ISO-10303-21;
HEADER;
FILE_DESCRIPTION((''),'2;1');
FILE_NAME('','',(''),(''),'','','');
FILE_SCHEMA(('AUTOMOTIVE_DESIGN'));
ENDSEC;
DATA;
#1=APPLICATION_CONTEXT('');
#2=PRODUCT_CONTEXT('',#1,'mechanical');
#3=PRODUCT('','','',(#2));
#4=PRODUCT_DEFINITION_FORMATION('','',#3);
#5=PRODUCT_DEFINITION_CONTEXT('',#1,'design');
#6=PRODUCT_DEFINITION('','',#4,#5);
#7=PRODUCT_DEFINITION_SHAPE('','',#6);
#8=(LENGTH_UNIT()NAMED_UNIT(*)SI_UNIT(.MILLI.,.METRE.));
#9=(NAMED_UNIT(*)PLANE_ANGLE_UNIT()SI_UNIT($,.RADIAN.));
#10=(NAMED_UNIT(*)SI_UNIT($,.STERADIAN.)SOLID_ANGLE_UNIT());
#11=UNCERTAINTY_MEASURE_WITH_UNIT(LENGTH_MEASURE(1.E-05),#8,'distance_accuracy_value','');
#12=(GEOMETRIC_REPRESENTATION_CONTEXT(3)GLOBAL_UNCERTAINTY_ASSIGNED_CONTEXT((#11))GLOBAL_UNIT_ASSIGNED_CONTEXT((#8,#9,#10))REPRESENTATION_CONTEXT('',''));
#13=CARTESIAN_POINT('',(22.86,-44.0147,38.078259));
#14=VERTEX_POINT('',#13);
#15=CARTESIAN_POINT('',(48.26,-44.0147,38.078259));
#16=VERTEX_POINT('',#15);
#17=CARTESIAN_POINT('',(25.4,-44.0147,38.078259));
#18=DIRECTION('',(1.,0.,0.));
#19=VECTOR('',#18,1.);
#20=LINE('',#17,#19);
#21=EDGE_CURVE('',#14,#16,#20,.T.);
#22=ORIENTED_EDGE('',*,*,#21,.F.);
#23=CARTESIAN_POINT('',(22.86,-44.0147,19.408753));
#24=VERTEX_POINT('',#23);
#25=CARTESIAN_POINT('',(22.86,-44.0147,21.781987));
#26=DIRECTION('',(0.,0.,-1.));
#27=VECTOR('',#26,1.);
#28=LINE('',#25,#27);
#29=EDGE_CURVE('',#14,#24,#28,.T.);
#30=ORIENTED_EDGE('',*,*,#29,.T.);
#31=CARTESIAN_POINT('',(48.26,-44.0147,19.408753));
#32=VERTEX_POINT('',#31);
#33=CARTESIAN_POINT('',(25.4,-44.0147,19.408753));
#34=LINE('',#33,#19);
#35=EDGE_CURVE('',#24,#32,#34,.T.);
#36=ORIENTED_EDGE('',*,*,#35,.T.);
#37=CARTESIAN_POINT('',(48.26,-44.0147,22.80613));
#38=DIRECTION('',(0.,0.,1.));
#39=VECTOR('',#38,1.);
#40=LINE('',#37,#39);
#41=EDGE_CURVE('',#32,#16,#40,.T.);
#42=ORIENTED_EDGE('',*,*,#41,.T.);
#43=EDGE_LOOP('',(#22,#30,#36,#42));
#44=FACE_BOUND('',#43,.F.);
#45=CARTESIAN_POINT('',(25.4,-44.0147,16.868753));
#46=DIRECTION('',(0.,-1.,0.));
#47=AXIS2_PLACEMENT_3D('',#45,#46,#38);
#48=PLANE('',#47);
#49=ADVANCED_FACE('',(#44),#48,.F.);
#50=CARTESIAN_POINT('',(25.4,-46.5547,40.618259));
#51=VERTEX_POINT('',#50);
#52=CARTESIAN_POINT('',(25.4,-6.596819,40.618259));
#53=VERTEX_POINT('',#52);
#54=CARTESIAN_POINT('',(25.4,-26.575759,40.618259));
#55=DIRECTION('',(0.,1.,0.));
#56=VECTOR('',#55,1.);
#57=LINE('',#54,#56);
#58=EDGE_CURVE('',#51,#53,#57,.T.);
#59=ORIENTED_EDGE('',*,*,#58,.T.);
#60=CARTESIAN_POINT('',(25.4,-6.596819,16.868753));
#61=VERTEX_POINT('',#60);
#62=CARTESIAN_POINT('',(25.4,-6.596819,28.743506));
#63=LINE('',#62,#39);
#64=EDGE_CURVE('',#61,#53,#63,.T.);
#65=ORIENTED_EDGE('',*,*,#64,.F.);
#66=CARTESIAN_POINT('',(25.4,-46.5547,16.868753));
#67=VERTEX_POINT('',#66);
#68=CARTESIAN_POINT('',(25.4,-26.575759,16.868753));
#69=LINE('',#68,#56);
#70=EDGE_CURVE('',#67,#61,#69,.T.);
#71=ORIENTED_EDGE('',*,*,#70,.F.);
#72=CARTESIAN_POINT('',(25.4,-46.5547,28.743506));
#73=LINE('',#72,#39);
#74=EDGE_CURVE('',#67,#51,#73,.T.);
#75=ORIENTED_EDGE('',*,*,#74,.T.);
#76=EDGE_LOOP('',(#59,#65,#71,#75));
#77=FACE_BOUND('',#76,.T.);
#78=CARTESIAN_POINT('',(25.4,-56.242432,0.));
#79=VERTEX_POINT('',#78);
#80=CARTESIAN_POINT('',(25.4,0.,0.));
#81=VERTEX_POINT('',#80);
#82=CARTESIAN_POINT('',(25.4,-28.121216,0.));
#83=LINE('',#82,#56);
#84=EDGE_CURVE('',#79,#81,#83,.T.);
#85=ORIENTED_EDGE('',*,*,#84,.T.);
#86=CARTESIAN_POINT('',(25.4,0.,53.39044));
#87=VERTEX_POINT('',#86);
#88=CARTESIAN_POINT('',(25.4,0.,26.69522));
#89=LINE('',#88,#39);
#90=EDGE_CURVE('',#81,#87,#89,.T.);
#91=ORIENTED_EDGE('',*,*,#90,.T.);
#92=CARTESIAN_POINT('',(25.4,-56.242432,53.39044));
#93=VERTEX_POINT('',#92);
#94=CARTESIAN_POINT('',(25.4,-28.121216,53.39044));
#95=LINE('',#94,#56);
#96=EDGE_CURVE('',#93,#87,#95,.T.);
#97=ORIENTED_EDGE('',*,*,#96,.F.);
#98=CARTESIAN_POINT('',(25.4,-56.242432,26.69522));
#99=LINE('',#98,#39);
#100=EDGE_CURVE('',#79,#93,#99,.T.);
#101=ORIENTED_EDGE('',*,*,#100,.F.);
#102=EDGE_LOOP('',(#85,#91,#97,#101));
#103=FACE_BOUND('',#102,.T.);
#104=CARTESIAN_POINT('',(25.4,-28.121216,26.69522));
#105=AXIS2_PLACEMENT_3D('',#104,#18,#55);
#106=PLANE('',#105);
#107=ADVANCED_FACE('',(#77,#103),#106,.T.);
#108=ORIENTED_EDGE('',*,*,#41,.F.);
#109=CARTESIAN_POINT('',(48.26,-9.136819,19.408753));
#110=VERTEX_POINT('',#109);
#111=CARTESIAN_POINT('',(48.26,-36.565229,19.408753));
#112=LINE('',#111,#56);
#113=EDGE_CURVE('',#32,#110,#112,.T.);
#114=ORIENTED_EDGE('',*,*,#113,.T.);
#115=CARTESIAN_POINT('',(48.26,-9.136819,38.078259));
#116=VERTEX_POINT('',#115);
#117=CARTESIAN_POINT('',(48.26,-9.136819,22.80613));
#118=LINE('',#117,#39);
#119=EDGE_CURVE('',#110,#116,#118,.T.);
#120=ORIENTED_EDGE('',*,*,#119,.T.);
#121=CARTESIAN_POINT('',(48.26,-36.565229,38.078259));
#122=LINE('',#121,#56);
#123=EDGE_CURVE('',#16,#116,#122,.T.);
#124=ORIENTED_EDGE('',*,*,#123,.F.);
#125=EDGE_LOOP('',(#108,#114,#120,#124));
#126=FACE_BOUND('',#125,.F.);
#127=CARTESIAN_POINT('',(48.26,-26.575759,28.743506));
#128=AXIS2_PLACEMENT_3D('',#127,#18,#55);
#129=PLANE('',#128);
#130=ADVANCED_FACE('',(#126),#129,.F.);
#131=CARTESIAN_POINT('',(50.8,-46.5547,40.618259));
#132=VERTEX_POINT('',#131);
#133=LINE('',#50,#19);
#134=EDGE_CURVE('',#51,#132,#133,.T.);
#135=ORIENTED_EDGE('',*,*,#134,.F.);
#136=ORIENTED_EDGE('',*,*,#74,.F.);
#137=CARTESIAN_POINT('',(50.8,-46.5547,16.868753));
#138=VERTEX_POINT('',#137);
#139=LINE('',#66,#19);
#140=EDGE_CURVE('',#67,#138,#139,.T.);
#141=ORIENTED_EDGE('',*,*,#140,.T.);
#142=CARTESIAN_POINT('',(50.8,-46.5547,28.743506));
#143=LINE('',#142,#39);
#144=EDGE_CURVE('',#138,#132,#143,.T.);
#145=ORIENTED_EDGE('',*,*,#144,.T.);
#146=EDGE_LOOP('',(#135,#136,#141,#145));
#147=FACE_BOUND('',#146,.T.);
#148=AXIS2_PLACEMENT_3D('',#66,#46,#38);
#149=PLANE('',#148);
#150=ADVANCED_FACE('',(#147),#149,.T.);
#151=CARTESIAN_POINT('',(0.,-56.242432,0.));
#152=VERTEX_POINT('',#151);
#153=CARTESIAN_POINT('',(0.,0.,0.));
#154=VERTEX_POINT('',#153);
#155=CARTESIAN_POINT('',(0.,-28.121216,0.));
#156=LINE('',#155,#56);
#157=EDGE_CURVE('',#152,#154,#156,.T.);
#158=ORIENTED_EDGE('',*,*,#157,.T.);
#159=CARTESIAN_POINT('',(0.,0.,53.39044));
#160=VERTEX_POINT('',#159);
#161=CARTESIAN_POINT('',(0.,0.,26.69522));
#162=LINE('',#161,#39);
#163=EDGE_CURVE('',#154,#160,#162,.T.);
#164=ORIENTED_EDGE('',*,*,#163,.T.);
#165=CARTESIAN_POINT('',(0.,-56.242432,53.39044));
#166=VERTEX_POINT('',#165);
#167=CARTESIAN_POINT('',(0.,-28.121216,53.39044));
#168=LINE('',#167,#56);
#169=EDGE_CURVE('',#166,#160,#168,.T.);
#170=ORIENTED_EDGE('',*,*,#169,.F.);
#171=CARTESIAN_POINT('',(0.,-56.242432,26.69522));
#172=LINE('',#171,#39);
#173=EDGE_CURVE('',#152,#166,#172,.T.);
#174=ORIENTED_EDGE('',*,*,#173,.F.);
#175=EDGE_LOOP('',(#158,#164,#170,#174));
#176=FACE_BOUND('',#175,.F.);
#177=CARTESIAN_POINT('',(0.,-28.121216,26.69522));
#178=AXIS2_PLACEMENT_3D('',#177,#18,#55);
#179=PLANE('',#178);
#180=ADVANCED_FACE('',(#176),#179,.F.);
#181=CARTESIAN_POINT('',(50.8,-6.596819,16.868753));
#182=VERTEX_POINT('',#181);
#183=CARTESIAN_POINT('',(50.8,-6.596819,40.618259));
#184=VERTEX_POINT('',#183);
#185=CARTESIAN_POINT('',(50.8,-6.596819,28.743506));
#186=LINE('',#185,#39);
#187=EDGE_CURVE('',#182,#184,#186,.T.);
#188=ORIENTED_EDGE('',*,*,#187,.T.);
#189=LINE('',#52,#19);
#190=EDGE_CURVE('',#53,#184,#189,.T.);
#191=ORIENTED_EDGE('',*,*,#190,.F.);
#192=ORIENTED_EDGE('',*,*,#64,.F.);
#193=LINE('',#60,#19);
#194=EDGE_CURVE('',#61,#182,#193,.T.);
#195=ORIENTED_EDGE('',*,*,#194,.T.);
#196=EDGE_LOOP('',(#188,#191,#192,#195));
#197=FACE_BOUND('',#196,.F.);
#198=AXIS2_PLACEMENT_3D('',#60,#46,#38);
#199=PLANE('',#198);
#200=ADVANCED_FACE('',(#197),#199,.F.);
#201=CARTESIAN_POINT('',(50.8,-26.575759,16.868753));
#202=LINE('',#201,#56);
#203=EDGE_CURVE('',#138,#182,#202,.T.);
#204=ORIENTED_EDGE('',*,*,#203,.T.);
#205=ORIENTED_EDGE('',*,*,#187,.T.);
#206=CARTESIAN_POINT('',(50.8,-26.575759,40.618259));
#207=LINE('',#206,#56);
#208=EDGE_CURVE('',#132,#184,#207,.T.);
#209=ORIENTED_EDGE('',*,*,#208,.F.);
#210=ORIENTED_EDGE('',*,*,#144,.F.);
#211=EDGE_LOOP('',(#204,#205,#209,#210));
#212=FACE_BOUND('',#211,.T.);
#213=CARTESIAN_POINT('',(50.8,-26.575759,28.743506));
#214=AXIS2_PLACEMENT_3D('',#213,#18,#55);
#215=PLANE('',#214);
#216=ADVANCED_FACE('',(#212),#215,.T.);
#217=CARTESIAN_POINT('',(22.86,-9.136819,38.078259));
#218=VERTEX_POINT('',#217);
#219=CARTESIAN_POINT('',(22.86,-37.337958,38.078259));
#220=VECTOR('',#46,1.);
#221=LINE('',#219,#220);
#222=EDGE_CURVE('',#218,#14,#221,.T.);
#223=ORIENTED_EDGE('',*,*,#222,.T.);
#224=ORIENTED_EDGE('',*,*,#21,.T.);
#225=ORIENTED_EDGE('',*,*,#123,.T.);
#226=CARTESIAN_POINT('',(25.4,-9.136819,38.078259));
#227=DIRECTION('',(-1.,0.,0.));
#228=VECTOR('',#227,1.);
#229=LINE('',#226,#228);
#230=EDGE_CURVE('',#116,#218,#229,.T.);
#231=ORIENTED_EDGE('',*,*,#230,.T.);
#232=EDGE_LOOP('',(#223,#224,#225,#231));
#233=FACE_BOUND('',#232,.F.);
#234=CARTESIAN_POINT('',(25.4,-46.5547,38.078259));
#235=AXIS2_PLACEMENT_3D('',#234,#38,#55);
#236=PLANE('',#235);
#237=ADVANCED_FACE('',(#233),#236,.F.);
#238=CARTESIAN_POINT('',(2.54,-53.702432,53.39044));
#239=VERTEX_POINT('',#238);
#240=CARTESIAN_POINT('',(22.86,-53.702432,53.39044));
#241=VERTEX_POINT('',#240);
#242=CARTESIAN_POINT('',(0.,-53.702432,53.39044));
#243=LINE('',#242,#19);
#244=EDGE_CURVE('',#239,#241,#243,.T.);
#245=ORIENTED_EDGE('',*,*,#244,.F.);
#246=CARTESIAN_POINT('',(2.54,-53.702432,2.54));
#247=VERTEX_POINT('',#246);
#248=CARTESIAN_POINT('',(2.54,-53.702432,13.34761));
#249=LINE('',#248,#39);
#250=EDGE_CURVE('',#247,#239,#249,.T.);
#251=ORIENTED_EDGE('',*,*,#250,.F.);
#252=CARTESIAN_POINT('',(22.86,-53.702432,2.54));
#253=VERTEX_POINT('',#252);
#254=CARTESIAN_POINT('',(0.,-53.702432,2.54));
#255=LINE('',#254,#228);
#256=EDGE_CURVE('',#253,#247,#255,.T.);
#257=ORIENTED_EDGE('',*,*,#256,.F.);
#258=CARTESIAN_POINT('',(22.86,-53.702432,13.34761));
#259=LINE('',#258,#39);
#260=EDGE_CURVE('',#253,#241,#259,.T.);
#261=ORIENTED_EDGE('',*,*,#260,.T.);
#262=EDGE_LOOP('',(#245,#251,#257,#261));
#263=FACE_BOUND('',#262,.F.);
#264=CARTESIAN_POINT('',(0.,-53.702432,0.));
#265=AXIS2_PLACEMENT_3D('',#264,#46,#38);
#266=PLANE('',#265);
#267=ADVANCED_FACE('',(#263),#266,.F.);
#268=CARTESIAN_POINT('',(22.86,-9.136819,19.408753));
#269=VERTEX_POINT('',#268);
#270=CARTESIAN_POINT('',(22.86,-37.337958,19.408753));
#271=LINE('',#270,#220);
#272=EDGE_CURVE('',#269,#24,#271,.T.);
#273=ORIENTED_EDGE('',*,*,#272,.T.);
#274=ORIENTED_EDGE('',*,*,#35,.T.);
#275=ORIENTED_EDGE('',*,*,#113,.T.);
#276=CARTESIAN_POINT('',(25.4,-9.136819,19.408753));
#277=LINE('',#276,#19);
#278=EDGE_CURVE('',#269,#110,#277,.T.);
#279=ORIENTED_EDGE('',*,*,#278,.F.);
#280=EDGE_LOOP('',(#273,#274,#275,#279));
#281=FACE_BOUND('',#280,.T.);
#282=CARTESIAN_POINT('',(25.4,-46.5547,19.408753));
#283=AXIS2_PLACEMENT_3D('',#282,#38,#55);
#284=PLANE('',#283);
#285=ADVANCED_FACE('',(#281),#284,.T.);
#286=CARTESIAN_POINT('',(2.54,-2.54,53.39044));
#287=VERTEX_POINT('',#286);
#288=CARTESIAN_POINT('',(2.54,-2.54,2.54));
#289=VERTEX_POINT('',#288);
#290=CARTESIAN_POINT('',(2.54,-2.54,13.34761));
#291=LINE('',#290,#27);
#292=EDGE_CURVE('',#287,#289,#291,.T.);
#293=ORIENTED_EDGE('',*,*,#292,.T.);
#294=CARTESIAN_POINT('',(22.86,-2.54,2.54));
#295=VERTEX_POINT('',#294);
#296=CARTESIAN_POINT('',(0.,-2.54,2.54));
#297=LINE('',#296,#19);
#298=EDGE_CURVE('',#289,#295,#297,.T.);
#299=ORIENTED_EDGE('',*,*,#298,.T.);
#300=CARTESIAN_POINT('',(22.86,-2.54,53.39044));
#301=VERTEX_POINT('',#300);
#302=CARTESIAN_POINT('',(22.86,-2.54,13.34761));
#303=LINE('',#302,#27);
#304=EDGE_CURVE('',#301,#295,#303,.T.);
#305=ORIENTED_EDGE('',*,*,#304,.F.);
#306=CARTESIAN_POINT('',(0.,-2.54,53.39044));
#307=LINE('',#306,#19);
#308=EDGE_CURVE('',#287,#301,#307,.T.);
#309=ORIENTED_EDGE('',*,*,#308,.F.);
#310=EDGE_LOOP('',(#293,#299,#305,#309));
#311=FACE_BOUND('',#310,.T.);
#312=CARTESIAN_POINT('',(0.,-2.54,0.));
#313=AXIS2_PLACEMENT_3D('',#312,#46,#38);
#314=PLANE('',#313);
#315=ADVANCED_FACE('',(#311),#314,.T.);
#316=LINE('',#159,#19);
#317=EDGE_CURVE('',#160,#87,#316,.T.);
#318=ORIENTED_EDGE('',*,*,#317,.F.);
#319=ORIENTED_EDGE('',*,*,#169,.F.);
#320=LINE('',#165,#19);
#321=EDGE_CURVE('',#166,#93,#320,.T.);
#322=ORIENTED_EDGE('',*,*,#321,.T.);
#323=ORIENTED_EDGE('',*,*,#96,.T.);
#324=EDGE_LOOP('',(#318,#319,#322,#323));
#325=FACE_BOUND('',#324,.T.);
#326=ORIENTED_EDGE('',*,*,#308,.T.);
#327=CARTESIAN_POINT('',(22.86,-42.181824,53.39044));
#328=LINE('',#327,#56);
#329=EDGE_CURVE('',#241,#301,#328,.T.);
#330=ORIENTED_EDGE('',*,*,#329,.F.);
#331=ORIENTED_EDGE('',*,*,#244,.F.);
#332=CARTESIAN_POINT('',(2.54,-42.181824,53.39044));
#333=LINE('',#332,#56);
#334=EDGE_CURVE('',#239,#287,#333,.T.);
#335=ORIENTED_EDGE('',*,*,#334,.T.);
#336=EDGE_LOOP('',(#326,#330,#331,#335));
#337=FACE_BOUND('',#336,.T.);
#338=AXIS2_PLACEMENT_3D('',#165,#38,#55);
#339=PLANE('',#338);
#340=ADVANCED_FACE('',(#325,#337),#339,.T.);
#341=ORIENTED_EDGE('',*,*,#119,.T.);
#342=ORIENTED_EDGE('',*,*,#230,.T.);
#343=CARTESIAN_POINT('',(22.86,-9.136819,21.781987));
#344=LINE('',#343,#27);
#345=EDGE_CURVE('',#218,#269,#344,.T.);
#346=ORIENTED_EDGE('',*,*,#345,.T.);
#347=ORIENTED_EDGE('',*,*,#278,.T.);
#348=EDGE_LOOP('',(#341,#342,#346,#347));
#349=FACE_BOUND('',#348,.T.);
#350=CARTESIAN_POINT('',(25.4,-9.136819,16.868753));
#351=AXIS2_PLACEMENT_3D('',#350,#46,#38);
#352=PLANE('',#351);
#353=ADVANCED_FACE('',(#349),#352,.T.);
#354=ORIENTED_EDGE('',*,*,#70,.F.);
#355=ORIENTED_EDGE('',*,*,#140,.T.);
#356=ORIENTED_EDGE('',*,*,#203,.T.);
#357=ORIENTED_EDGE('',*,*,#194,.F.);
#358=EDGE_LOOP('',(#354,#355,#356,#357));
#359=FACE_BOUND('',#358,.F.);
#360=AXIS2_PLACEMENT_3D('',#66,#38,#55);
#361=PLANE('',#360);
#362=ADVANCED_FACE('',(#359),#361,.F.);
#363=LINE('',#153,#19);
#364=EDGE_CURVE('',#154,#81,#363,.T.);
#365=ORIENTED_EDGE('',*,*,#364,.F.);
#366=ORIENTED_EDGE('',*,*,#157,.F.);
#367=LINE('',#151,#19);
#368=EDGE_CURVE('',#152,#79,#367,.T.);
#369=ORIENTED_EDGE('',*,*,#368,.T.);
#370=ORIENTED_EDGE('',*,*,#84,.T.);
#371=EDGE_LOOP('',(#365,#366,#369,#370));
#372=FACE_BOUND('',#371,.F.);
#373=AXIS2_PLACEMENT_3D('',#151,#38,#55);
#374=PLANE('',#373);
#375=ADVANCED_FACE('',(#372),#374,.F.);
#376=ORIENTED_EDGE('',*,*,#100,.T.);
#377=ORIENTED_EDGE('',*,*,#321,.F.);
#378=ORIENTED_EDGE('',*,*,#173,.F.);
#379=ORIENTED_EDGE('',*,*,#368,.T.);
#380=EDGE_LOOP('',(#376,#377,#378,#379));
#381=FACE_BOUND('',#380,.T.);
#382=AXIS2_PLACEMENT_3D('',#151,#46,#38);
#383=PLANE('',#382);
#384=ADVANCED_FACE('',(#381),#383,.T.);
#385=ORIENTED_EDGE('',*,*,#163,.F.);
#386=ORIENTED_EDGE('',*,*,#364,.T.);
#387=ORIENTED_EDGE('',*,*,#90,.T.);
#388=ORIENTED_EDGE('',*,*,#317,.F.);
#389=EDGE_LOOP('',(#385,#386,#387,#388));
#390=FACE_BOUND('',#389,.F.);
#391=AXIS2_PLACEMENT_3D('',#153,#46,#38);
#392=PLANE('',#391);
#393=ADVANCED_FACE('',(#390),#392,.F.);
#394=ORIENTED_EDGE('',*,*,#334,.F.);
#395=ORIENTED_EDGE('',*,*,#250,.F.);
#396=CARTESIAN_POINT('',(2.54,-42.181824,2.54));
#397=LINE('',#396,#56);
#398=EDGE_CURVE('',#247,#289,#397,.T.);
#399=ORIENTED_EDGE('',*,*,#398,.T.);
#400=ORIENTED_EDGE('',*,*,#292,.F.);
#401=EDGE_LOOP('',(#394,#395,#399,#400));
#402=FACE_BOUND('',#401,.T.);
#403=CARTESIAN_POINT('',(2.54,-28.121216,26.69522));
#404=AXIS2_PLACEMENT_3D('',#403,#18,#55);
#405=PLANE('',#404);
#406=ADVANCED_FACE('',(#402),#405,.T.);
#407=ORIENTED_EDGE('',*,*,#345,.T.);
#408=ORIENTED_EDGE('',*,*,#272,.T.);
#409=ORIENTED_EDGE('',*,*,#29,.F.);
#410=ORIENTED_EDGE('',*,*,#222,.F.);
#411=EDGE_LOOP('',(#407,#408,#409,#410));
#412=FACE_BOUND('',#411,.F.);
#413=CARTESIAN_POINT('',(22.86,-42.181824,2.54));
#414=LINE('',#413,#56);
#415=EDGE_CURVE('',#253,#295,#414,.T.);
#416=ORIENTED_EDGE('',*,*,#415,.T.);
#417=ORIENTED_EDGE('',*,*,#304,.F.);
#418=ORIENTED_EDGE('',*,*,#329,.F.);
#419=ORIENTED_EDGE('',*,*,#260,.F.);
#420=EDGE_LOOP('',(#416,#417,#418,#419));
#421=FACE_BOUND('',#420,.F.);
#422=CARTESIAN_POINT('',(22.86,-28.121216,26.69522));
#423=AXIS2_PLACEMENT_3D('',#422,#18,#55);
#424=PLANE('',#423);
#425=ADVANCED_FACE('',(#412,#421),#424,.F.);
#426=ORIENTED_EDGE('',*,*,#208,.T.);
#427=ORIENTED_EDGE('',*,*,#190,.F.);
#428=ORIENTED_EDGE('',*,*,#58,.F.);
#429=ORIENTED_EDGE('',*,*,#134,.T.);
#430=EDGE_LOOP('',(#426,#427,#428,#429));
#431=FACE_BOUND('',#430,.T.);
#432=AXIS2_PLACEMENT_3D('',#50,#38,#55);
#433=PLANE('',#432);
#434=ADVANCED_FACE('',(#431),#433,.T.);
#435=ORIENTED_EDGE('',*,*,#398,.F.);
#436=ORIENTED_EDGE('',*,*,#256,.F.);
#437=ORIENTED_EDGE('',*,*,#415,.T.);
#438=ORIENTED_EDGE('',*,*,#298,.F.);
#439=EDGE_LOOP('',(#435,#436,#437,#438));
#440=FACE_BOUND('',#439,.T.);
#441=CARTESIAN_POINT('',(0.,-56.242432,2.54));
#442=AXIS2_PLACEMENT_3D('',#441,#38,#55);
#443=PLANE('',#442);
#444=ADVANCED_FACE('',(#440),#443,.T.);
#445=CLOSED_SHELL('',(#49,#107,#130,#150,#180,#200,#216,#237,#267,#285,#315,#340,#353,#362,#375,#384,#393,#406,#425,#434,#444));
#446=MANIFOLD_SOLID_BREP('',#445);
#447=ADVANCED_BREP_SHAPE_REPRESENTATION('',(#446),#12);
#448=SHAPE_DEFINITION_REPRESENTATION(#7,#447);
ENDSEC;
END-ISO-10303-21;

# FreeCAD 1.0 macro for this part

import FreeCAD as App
import Part
import Sketcher

V = App.Vector
Q = App.Units.Quantity


def faces_at(feature, points):
    """Names of the faces that lie closest to the given points."""
    faces = feature.Shape.Faces
    near = lambda p: min(range(len(faces)), key=lambda i: faces[i].distToShape(Part.Vertex(*p))[0])
    return sorted({f"Face{near(p) + 1}" for p in points})

doc = App.newDocument("Part")
body = doc.addObject("PartDesign::Body", "Body")

sketch1 = doc.addObject("Sketcher::SketchObject", "Sketch")
body.addObject(sketch1)
sketch1.AttachmentSupport = (doc.XY_Plane, [""])
sketch1.MapMode = "FlatFace"
sketch1.addGeometry(Part.LineSegment(V(-35.901044, 59.846725, 0), V(-35.901044, 0, 0)), False)
sketch1.addGeometry(Part.LineSegment(V(-35.901044, 0, 0), V(0, 0, 0)), False)
sketch1.addGeometry(Part.LineSegment(V(0, 0, 0), V(0, 59.846725, 0)), False)
sketch1.addGeometry(Part.LineSegment(V(0, 59.846725, 0), V(-35.901044, 59.846725, 0)), False)
sketch1.addConstraint(Sketcher.Constraint("Coincident", 0, 2, 1, 1))
sketch1.addConstraint(Sketcher.Constraint("Coincident", 1, 2, 2, 1))
sketch1.addConstraint(Sketcher.Constraint("Coincident", 2, 2, 3, 1))
sketch1.addConstraint(Sketcher.Constraint("Coincident", 3, 2, 0, 1))
sketch1.addConstraint(Sketcher.Constraint("Vertical", 0))
sketch1.addConstraint(Sketcher.Constraint("Horizontal", 1))
sketch1.addConstraint(Sketcher.Constraint("Vertical", 2))
sketch1.addConstraint(Sketcher.Constraint("Horizontal", 3))
sketch1.addConstraint(Sketcher.Constraint("Coincident", 1, 2, -1, 1))
sketch1.addConstraint(Sketcher.Constraint("DistanceX", 1, 1, 1, 2, Q("35.901044 mm")))
sketch1.addConstraint(Sketcher.Constraint("DistanceY", 0, 2, 0, 1, Q("59.846725 mm")))
pad1 = doc.addObject("PartDesign::Pad", "Pad")
body.addObject(pad1)
pad1.Profile = sketch1
pad1.Length = Q("1 in")
body2 = doc.addObject("PartDesign::Body", "Body001")

sketch2 = doc.addObject("Sketcher::SketchObject", "Sketch001")
body2.addObject(sketch2)
sketch2.AttachmentSupport = (doc.getObject("YZ_Plane001"), [""])
sketch2.MapMode = "FlatFace"
sketch2.addGeometry(Part.LineSegment(V(-56.242432, 53.39044, 0), V(-56.242432, 0, 0)), False)
sketch2.addGeometry(Part.LineSegment(V(-56.242432, 0, 0), V(0, 0, 0)), False)
sketch2.addGeometry(Part.LineSegment(V(0, 0, 0), V(0, 53.39044, 0)), False)
sketch2.addGeometry(Part.LineSegment(V(0, 53.39044, 0), V(-56.242432, 53.39044, 0)), False)
sketch2.addConstraint(Sketcher.Constraint("Coincident", 0, 2, 1, 1))
sketch2.addConstraint(Sketcher.Constraint("Coincident", 1, 2, 2, 1))
sketch2.addConstraint(Sketcher.Constraint("Coincident", 2, 2, 3, 1))
sketch2.addConstraint(Sketcher.Constraint("Coincident", 3, 2, 0, 1))
sketch2.addConstraint(Sketcher.Constraint("Vertical", 0))
sketch2.addConstraint(Sketcher.Constraint("Horizontal", 1))
sketch2.addConstraint(Sketcher.Constraint("Vertical", 2))
sketch2.addConstraint(Sketcher.Constraint("Horizontal", 3))
sketch2.addConstraint(Sketcher.Constraint("Coincident", 1, 2, -1, 1))
sketch2.addConstraint(Sketcher.Constraint("DistanceY", 0, 2, 0, 1, Q("53.39044 mm")))
sketch2.addConstraint(Sketcher.Constraint("DistanceX", 1, 1, 1, 2, Q("56.242432 mm")))
pad2 = doc.addObject("PartDesign::Pad", "Pad001")
body2.addObject(pad2)
pad2.Profile = sketch2
pad2.Length = Q("1 in")

sketch3 = doc.addObject("Sketcher::SketchObject", "Sketch002")
body2.addObject(sketch3)
sketch3.AttachmentSupport = (doc.getObject("YZ_Plane001"), [""])
sketch3.MapMode = "FlatFace"
sketch3.AttachmentOffset = App.Placement(V(0, 0, 1 * 25.4), App.Rotation())
sketch3.addGeometry(Part.LineSegment(V(-46.5547, 40.618259, 0), V(-46.5547, 16.868753, 0)), False)
sketch3.addGeometry(Part.LineSegment(V(-46.5547, 16.868753, 0), V(-6.596819, 16.868753, 0)), False)
sketch3.addGeometry(Part.LineSegment(V(-6.596819, 16.868753, 0), V(-6.596819, 40.618259, 0)), False)
sketch3.addGeometry(Part.LineSegment(V(-6.596819, 40.618259, 0), V(-46.5547, 40.618259, 0)), False)
sketch3.addConstraint(Sketcher.Constraint("Coincident", 0, 2, 1, 1))
sketch3.addConstraint(Sketcher.Constraint("Coincident", 1, 2, 2, 1))
sketch3.addConstraint(Sketcher.Constraint("Coincident", 2, 2, 3, 1))
sketch3.addConstraint(Sketcher.Constraint("Coincident", 3, 2, 0, 1))
sketch3.addConstraint(Sketcher.Constraint("Vertical", 0))
sketch3.addConstraint(Sketcher.Constraint("Horizontal", 1))
sketch3.addConstraint(Sketcher.Constraint("Vertical", 2))
sketch3.addConstraint(Sketcher.Constraint("Horizontal", 3))
sketch3.addConstraint(Sketcher.Constraint("DistanceX", 1, 1, 1, 2, Q("39.957881 mm")))
sketch3.addConstraint(Sketcher.Constraint("DistanceX", 0, 2, -1, 1, Q("46.5547 mm")))
sketch3.addConstraint(Sketcher.Constraint("DistanceY", 0, 2, 0, 1, Q("23.749506 mm")))
sketch3.addConstraint(Sketcher.Constraint("DistanceY", -1, 1, 2, 2, Q("40.618259 mm")))
pad3 = doc.addObject("PartDesign::Pad", "Pad002")
body2.addObject(pad3)
pad3.Profile = sketch3
pad3.Length = Q("1 in")
doc.recompute()

thickness = doc.addObject("PartDesign::Thickness", "Thickness")
body2.addObject(thickness)
thickness.Base = (pad3, faces_at(pad3, [(12.7, -28.121, 53.39)]))
thickness.Value = Q("0.1 in")
thickness.Reversed = True
thickness.Join = "Intersection"
body.Visibility = False

doc.recompute()
